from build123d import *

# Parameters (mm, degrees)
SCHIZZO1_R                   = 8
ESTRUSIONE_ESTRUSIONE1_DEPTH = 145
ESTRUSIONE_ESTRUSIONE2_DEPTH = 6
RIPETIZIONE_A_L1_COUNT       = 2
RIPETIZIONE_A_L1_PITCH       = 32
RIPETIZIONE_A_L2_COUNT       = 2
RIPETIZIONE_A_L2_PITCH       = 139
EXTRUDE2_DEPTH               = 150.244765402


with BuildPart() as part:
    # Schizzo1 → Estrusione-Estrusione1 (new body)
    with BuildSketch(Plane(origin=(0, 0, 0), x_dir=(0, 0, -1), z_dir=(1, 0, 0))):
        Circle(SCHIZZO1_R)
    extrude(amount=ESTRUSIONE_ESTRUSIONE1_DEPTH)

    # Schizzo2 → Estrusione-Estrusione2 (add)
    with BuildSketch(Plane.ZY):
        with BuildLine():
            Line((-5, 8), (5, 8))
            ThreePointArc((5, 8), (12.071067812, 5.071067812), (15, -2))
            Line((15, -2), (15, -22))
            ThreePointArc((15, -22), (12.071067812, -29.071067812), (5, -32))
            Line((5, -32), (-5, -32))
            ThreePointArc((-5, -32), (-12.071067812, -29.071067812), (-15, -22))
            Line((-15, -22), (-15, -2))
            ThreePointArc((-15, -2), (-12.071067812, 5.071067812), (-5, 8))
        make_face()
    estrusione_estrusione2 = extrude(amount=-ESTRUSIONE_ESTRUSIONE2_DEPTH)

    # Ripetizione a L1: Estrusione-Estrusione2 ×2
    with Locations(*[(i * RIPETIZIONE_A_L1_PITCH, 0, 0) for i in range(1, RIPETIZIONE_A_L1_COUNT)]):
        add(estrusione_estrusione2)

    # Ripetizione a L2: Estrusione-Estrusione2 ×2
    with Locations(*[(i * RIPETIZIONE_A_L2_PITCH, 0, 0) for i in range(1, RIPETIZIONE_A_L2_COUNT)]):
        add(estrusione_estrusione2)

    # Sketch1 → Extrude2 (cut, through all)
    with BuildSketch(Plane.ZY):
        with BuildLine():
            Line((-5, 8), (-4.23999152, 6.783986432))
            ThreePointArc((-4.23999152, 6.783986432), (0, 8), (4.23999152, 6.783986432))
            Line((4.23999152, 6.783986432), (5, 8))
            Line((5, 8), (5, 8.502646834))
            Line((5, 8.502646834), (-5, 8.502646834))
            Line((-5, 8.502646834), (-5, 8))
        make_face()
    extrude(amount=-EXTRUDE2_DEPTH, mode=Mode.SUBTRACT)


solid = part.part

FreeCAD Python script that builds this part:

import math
import FreeCAD as App
import Part
import Sketcher

V = App.Vector
Q = App.Units.Quantity

doc = App.newDocument("Part")
body = doc.addObject("PartDesign::Body", "Body")

sketch1 = doc.addObject("Sketcher::SketchObject", "Sketch")
body.addObject(sketch1)
sketch1.AttachmentSupport = (doc.YZ_Plane, [""])
sketch1.MapMode = "FlatFace"
sketch1.addGeometry(Part.Circle(V(0, 0, 0), V(0, 0, 1), 8), False)
sketch1.addConstraint([
    Sketcher.Constraint("Coincident", 0, 3, -1, 1),
    Sketcher.Constraint("Diameter", 0, Q("16 mm")),
])
pad1 = doc.addObject("PartDesign::Pad", "Pad")
body.addObject(pad1)
pad1.Profile = sketch1
pad1.Length = 145

sketch2 = doc.addObject("Sketcher::SketchObject", "Sketch001")
body.addObject(sketch2)
sketch2.AttachmentSupport = (doc.YZ_Plane, [""])
sketch2.MapMode = "FlatFace"
sketch2.addGeometry([
    Part.LineSegment(V(8, 5, 0), V(8, -5, 0)),
    Part.ArcOfCircle(Part.Circle(V(-2, -5, 0), V(0, 0, 1), 10), math.radians(-90), math.radians(0)),
    Part.LineSegment(V(-2, -15, 0), V(-22, -15, 0)),
    Part.ArcOfCircle(Part.Circle(V(-22, -5, 0), V(0, 0, 1), 10), math.radians(180), math.radians(270)),
    Part.LineSegment(V(-32, -5, 0), V(-32, 5, 0)),
    Part.ArcOfCircle(Part.Circle(V(-22, 5, 0), V(0, 0, 1), 10), math.radians(90), math.radians(180)),
    Part.LineSegment(V(-22, 15, 0), V(-2, 15, 0)),
    Part.ArcOfCircle(Part.Circle(V(-2, 5, 0), V(0, 0, 1), 10), math.radians(0), math.radians(90)),
], False)
sketch2.addConstraint([
    Sketcher.Constraint("Tangent", 0, 2, 1, 2),
    Sketcher.Constraint("Tangent", 1, 1, 2, 1),
    Sketcher.Constraint("Tangent", 2, 2, 3, 2),
    Sketcher.Constraint("Tangent", 3, 1, 4, 1),
    Sketcher.Constraint("Tangent", 4, 2, 5, 2),
    Sketcher.Constraint("Tangent", 5, 1, 6, 1),
    Sketcher.Constraint("Tangent", 6, 2, 7, 2),
    Sketcher.Constraint("Tangent", 7, 1, 0, 1),
    Sketcher.Constraint("Vertical", 0),
    Sketcher.Constraint("Horizontal", 2),
    Sketcher.Constraint("Vertical", 4),
    Sketcher.Constraint("Horizontal", 6),
    Sketcher.Constraint("Equal", 1, 3),
    Sketcher.Constraint("Equal", 3, 5),
    Sketcher.Constraint("Equal", 5, 7),
    Sketcher.Constraint("Radius", 1, Q("10 mm")),
    Sketcher.Constraint("DistanceX", 2, 2, 2, 1, Q("20 mm")),
    Sketcher.Constraint("DistanceY", 0, 2, 0, 1, Q("10 mm")),
    Sketcher.Constraint("DistanceX", 1, 3, -1, 1, Q("2 mm")),
    Sketcher.Constraint("DistanceY", 1, 3, -1, 1, Q("5 mm")),
])
pad2 = doc.addObject("PartDesign::Pad", "Pad001")
body.addObject(pad2)
pad2.Profile = sketch2
pad2.Length = 6
doc.recompute()

linearpattern = doc.addObject("PartDesign::LinearPattern", "LinearPattern")
body.addObject(linearpattern)
linearpattern.Originals = [pad2]
linearpattern.Direction = (doc.X_Axis, [""])
linearpattern.Mode = "offset"
linearpattern.Offset = 32
linearpattern.Occurrences = 2
body.Tip = linearpattern
doc.recompute()

linearpattern2 = doc.addObject("PartDesign::LinearPattern", "LinearPattern001")
body.addObject(linearpattern2)
linearpattern2.Originals = [pad2]
linearpattern2.Direction = (doc.X_Axis, [""])
linearpattern2.Mode = "offset"
linearpattern2.Offset = 139
linearpattern2.Occurrences = 2
body.Tip = linearpattern2

sketch3 = doc.addObject("Sketcher::SketchObject", "Sketch002")
body.addObject(sketch3)
sketch3.AttachmentSupport = (doc.YZ_Plane, [""])
sketch3.MapMode = "FlatFace"
sketch3.addGeometry([
    Part.LineSegment(V(8, -5, 0), V(6.8, -4.2, 0)),
    Part.ArcOfCircle(Part.Circle(V(0, 0, 0), V(0, 0, 1), 8), math.radians(-32), math.radians(32)),
    Part.LineSegment(V(6.8, 4.2, 0), V(8, 5, 0)),
    Part.LineSegment(V(8, 5, 0), V(8.5, 5, 0)),
    Part.LineSegment(V(8.5, 5, 0), V(8.5, -5, 0)),
    Part.LineSegment(V(8.5, -5, 0), V(8, -5, 0)),
], False)
sketch3.addConstraint([
    Sketcher.Constraint("Coincident", 0, 2, 1, 1),
    Sketcher.Constraint("Coincident", 1, 2, 2, 1),
    Sketcher.Constraint("Coincident", 2, 2, 3, 1),
    Sketcher.Constraint("Coincident", 3, 2, 4, 1),
    Sketcher.Constraint("Coincident", 4, 2, 5, 1),
    Sketcher.Constraint("Coincident", 5, 2, 0, 1),
    Sketcher.Constraint("Horizontal", 3),
    Sketcher.Constraint("Vertical", 4),
    Sketcher.Constraint("Horizontal", 5),
    Sketcher.Constraint("Coincident", 1, 3, -1, 1),
    Sketcher.Constraint("Symmetric", 2, 2, 5, 2, -1),
    Sketcher.Constraint("Vertical", 0, 2, 1, 2),
    Sketcher.Constraint("Radius", 1, Q("8 mm")),
    Sketcher.Constraint("DistanceY", 4, 2, 4, 1, Q("10 mm")),
    Sketcher.Constraint("DistanceX", -1, 1, 2, 2, Q("8 mm")),
    Sketcher.Constraint("DistanceX", 3, 1, 3, 2, Q("0.502647 mm")),
    Sketcher.Constraint("DistanceY", 0, 2, -1, 1, Q("4.239992 mm")),
])
pocket1 = doc.addObject("PartDesign::Pocket", "Pocket")
body.addObject(pocket1)
pocket1.Profile = sketch3
pocket1.Type = "ThroughAll"
pocket1.Reversed = True

doc.recompute()
